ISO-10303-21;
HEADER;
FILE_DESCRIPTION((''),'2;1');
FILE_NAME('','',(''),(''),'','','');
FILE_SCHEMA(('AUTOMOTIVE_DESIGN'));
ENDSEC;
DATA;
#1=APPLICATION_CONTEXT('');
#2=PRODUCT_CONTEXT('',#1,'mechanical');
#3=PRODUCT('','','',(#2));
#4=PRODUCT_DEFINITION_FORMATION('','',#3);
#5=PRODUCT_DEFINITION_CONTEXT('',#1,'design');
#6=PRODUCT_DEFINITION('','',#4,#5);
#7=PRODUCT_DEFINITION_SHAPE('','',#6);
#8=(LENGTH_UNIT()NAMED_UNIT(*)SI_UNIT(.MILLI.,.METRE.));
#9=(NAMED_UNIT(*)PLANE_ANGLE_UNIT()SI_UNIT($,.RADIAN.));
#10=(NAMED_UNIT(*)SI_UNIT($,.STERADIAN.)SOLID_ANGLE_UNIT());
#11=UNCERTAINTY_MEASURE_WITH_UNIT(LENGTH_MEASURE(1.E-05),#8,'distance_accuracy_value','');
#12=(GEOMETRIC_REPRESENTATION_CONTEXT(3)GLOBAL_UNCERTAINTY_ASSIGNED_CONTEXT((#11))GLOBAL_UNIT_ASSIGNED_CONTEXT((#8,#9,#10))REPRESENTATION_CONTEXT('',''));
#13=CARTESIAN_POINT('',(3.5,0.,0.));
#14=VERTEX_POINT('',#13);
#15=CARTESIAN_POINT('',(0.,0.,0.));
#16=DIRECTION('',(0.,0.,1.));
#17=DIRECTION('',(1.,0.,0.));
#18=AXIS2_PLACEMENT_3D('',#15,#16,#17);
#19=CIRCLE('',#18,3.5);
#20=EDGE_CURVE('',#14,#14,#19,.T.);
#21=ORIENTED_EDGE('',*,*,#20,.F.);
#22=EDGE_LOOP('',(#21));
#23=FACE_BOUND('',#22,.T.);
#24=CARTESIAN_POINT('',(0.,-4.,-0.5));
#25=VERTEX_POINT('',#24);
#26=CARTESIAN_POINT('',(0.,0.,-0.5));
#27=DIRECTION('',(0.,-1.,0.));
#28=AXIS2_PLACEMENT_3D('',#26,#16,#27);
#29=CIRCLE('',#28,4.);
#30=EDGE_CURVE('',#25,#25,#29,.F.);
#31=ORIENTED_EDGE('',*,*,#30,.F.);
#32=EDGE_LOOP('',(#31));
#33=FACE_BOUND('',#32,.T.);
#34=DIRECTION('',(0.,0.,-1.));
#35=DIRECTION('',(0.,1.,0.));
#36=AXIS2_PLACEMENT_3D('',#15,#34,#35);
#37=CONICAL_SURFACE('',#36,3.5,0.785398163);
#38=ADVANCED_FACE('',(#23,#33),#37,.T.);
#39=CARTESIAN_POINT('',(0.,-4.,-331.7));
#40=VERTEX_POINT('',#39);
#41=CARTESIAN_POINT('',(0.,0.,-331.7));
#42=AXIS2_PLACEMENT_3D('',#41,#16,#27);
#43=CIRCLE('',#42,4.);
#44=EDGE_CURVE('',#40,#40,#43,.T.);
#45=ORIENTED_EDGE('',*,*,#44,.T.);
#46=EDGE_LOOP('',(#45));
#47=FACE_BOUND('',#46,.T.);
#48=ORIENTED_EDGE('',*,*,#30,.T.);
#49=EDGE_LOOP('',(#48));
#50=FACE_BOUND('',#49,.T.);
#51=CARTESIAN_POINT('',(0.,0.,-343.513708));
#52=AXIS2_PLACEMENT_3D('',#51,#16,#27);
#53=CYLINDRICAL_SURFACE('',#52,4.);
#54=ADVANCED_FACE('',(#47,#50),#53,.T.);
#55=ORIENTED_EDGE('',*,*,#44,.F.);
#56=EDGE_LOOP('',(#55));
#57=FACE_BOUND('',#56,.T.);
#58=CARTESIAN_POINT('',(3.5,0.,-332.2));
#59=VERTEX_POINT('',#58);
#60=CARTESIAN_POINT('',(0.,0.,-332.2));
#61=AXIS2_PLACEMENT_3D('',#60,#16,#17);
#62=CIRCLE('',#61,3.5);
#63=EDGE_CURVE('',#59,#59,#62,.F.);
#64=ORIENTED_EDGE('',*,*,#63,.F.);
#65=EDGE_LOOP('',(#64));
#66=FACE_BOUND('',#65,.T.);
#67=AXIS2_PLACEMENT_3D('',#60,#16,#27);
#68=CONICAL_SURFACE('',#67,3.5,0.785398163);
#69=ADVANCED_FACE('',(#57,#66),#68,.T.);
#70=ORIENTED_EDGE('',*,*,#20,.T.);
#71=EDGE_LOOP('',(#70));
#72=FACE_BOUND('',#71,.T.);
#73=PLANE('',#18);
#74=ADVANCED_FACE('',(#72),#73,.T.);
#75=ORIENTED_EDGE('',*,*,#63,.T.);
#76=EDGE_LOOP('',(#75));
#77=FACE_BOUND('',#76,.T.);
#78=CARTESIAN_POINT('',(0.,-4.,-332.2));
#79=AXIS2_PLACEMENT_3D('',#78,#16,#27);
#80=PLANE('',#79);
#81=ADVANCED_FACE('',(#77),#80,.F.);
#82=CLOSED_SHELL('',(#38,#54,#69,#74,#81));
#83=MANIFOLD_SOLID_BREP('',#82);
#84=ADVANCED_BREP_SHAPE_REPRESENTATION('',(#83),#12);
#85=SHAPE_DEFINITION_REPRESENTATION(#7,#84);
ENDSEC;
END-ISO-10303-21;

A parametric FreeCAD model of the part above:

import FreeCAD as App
import Part
import Sketcher
from FreeCAD import Vector


def edges_at(feature, points):
    """Names of the edges that pass closest to the given points."""
    edges = feature.Shape.Edges
    near = lambda p: min(range(len(edges)), key=lambda i: edges[i].distToShape(Part.Vertex(*p))[0])
    return sorted({f"Edge{near(p) + 1}" for p in points})

doc = App.newDocument("Part")
body = doc.addObject("PartDesign::Body", "Body")

# Sketch on XY plane
sketch1 = body.newObject("Sketcher::SketchObject", "Sketch")
sketch1.AttachmentSupport = (doc.getObject("XY_Plane"), [""])
sketch1.MapMode = "FlatFace"
sketch1.addGeometry(Part.Circle(Vector(0, 0, 0), Vector(0, 0, 1), 4), False)
sketch1.addConstraint(Sketcher.Constraint("Coincident", 0, 3, -1, 1))
sketch1.addConstraint(Sketcher.Constraint("Diameter", 0, 8.0))
pad1 = body.newObject("PartDesign::Pad", "Pad")
pad1.Profile = sketch1
pad1.Length = 332.2
pad1.Reversed = True
doc.recompute()

chamfer = body.newObject("PartDesign::Chamfer", "Chamfer")
chamfer.Base = (pad1, edges_at(pad1, [(-4, 0, 0), (-4, 0, -332.2)]))
chamfer.Size = 0.5

doc.recompute()
